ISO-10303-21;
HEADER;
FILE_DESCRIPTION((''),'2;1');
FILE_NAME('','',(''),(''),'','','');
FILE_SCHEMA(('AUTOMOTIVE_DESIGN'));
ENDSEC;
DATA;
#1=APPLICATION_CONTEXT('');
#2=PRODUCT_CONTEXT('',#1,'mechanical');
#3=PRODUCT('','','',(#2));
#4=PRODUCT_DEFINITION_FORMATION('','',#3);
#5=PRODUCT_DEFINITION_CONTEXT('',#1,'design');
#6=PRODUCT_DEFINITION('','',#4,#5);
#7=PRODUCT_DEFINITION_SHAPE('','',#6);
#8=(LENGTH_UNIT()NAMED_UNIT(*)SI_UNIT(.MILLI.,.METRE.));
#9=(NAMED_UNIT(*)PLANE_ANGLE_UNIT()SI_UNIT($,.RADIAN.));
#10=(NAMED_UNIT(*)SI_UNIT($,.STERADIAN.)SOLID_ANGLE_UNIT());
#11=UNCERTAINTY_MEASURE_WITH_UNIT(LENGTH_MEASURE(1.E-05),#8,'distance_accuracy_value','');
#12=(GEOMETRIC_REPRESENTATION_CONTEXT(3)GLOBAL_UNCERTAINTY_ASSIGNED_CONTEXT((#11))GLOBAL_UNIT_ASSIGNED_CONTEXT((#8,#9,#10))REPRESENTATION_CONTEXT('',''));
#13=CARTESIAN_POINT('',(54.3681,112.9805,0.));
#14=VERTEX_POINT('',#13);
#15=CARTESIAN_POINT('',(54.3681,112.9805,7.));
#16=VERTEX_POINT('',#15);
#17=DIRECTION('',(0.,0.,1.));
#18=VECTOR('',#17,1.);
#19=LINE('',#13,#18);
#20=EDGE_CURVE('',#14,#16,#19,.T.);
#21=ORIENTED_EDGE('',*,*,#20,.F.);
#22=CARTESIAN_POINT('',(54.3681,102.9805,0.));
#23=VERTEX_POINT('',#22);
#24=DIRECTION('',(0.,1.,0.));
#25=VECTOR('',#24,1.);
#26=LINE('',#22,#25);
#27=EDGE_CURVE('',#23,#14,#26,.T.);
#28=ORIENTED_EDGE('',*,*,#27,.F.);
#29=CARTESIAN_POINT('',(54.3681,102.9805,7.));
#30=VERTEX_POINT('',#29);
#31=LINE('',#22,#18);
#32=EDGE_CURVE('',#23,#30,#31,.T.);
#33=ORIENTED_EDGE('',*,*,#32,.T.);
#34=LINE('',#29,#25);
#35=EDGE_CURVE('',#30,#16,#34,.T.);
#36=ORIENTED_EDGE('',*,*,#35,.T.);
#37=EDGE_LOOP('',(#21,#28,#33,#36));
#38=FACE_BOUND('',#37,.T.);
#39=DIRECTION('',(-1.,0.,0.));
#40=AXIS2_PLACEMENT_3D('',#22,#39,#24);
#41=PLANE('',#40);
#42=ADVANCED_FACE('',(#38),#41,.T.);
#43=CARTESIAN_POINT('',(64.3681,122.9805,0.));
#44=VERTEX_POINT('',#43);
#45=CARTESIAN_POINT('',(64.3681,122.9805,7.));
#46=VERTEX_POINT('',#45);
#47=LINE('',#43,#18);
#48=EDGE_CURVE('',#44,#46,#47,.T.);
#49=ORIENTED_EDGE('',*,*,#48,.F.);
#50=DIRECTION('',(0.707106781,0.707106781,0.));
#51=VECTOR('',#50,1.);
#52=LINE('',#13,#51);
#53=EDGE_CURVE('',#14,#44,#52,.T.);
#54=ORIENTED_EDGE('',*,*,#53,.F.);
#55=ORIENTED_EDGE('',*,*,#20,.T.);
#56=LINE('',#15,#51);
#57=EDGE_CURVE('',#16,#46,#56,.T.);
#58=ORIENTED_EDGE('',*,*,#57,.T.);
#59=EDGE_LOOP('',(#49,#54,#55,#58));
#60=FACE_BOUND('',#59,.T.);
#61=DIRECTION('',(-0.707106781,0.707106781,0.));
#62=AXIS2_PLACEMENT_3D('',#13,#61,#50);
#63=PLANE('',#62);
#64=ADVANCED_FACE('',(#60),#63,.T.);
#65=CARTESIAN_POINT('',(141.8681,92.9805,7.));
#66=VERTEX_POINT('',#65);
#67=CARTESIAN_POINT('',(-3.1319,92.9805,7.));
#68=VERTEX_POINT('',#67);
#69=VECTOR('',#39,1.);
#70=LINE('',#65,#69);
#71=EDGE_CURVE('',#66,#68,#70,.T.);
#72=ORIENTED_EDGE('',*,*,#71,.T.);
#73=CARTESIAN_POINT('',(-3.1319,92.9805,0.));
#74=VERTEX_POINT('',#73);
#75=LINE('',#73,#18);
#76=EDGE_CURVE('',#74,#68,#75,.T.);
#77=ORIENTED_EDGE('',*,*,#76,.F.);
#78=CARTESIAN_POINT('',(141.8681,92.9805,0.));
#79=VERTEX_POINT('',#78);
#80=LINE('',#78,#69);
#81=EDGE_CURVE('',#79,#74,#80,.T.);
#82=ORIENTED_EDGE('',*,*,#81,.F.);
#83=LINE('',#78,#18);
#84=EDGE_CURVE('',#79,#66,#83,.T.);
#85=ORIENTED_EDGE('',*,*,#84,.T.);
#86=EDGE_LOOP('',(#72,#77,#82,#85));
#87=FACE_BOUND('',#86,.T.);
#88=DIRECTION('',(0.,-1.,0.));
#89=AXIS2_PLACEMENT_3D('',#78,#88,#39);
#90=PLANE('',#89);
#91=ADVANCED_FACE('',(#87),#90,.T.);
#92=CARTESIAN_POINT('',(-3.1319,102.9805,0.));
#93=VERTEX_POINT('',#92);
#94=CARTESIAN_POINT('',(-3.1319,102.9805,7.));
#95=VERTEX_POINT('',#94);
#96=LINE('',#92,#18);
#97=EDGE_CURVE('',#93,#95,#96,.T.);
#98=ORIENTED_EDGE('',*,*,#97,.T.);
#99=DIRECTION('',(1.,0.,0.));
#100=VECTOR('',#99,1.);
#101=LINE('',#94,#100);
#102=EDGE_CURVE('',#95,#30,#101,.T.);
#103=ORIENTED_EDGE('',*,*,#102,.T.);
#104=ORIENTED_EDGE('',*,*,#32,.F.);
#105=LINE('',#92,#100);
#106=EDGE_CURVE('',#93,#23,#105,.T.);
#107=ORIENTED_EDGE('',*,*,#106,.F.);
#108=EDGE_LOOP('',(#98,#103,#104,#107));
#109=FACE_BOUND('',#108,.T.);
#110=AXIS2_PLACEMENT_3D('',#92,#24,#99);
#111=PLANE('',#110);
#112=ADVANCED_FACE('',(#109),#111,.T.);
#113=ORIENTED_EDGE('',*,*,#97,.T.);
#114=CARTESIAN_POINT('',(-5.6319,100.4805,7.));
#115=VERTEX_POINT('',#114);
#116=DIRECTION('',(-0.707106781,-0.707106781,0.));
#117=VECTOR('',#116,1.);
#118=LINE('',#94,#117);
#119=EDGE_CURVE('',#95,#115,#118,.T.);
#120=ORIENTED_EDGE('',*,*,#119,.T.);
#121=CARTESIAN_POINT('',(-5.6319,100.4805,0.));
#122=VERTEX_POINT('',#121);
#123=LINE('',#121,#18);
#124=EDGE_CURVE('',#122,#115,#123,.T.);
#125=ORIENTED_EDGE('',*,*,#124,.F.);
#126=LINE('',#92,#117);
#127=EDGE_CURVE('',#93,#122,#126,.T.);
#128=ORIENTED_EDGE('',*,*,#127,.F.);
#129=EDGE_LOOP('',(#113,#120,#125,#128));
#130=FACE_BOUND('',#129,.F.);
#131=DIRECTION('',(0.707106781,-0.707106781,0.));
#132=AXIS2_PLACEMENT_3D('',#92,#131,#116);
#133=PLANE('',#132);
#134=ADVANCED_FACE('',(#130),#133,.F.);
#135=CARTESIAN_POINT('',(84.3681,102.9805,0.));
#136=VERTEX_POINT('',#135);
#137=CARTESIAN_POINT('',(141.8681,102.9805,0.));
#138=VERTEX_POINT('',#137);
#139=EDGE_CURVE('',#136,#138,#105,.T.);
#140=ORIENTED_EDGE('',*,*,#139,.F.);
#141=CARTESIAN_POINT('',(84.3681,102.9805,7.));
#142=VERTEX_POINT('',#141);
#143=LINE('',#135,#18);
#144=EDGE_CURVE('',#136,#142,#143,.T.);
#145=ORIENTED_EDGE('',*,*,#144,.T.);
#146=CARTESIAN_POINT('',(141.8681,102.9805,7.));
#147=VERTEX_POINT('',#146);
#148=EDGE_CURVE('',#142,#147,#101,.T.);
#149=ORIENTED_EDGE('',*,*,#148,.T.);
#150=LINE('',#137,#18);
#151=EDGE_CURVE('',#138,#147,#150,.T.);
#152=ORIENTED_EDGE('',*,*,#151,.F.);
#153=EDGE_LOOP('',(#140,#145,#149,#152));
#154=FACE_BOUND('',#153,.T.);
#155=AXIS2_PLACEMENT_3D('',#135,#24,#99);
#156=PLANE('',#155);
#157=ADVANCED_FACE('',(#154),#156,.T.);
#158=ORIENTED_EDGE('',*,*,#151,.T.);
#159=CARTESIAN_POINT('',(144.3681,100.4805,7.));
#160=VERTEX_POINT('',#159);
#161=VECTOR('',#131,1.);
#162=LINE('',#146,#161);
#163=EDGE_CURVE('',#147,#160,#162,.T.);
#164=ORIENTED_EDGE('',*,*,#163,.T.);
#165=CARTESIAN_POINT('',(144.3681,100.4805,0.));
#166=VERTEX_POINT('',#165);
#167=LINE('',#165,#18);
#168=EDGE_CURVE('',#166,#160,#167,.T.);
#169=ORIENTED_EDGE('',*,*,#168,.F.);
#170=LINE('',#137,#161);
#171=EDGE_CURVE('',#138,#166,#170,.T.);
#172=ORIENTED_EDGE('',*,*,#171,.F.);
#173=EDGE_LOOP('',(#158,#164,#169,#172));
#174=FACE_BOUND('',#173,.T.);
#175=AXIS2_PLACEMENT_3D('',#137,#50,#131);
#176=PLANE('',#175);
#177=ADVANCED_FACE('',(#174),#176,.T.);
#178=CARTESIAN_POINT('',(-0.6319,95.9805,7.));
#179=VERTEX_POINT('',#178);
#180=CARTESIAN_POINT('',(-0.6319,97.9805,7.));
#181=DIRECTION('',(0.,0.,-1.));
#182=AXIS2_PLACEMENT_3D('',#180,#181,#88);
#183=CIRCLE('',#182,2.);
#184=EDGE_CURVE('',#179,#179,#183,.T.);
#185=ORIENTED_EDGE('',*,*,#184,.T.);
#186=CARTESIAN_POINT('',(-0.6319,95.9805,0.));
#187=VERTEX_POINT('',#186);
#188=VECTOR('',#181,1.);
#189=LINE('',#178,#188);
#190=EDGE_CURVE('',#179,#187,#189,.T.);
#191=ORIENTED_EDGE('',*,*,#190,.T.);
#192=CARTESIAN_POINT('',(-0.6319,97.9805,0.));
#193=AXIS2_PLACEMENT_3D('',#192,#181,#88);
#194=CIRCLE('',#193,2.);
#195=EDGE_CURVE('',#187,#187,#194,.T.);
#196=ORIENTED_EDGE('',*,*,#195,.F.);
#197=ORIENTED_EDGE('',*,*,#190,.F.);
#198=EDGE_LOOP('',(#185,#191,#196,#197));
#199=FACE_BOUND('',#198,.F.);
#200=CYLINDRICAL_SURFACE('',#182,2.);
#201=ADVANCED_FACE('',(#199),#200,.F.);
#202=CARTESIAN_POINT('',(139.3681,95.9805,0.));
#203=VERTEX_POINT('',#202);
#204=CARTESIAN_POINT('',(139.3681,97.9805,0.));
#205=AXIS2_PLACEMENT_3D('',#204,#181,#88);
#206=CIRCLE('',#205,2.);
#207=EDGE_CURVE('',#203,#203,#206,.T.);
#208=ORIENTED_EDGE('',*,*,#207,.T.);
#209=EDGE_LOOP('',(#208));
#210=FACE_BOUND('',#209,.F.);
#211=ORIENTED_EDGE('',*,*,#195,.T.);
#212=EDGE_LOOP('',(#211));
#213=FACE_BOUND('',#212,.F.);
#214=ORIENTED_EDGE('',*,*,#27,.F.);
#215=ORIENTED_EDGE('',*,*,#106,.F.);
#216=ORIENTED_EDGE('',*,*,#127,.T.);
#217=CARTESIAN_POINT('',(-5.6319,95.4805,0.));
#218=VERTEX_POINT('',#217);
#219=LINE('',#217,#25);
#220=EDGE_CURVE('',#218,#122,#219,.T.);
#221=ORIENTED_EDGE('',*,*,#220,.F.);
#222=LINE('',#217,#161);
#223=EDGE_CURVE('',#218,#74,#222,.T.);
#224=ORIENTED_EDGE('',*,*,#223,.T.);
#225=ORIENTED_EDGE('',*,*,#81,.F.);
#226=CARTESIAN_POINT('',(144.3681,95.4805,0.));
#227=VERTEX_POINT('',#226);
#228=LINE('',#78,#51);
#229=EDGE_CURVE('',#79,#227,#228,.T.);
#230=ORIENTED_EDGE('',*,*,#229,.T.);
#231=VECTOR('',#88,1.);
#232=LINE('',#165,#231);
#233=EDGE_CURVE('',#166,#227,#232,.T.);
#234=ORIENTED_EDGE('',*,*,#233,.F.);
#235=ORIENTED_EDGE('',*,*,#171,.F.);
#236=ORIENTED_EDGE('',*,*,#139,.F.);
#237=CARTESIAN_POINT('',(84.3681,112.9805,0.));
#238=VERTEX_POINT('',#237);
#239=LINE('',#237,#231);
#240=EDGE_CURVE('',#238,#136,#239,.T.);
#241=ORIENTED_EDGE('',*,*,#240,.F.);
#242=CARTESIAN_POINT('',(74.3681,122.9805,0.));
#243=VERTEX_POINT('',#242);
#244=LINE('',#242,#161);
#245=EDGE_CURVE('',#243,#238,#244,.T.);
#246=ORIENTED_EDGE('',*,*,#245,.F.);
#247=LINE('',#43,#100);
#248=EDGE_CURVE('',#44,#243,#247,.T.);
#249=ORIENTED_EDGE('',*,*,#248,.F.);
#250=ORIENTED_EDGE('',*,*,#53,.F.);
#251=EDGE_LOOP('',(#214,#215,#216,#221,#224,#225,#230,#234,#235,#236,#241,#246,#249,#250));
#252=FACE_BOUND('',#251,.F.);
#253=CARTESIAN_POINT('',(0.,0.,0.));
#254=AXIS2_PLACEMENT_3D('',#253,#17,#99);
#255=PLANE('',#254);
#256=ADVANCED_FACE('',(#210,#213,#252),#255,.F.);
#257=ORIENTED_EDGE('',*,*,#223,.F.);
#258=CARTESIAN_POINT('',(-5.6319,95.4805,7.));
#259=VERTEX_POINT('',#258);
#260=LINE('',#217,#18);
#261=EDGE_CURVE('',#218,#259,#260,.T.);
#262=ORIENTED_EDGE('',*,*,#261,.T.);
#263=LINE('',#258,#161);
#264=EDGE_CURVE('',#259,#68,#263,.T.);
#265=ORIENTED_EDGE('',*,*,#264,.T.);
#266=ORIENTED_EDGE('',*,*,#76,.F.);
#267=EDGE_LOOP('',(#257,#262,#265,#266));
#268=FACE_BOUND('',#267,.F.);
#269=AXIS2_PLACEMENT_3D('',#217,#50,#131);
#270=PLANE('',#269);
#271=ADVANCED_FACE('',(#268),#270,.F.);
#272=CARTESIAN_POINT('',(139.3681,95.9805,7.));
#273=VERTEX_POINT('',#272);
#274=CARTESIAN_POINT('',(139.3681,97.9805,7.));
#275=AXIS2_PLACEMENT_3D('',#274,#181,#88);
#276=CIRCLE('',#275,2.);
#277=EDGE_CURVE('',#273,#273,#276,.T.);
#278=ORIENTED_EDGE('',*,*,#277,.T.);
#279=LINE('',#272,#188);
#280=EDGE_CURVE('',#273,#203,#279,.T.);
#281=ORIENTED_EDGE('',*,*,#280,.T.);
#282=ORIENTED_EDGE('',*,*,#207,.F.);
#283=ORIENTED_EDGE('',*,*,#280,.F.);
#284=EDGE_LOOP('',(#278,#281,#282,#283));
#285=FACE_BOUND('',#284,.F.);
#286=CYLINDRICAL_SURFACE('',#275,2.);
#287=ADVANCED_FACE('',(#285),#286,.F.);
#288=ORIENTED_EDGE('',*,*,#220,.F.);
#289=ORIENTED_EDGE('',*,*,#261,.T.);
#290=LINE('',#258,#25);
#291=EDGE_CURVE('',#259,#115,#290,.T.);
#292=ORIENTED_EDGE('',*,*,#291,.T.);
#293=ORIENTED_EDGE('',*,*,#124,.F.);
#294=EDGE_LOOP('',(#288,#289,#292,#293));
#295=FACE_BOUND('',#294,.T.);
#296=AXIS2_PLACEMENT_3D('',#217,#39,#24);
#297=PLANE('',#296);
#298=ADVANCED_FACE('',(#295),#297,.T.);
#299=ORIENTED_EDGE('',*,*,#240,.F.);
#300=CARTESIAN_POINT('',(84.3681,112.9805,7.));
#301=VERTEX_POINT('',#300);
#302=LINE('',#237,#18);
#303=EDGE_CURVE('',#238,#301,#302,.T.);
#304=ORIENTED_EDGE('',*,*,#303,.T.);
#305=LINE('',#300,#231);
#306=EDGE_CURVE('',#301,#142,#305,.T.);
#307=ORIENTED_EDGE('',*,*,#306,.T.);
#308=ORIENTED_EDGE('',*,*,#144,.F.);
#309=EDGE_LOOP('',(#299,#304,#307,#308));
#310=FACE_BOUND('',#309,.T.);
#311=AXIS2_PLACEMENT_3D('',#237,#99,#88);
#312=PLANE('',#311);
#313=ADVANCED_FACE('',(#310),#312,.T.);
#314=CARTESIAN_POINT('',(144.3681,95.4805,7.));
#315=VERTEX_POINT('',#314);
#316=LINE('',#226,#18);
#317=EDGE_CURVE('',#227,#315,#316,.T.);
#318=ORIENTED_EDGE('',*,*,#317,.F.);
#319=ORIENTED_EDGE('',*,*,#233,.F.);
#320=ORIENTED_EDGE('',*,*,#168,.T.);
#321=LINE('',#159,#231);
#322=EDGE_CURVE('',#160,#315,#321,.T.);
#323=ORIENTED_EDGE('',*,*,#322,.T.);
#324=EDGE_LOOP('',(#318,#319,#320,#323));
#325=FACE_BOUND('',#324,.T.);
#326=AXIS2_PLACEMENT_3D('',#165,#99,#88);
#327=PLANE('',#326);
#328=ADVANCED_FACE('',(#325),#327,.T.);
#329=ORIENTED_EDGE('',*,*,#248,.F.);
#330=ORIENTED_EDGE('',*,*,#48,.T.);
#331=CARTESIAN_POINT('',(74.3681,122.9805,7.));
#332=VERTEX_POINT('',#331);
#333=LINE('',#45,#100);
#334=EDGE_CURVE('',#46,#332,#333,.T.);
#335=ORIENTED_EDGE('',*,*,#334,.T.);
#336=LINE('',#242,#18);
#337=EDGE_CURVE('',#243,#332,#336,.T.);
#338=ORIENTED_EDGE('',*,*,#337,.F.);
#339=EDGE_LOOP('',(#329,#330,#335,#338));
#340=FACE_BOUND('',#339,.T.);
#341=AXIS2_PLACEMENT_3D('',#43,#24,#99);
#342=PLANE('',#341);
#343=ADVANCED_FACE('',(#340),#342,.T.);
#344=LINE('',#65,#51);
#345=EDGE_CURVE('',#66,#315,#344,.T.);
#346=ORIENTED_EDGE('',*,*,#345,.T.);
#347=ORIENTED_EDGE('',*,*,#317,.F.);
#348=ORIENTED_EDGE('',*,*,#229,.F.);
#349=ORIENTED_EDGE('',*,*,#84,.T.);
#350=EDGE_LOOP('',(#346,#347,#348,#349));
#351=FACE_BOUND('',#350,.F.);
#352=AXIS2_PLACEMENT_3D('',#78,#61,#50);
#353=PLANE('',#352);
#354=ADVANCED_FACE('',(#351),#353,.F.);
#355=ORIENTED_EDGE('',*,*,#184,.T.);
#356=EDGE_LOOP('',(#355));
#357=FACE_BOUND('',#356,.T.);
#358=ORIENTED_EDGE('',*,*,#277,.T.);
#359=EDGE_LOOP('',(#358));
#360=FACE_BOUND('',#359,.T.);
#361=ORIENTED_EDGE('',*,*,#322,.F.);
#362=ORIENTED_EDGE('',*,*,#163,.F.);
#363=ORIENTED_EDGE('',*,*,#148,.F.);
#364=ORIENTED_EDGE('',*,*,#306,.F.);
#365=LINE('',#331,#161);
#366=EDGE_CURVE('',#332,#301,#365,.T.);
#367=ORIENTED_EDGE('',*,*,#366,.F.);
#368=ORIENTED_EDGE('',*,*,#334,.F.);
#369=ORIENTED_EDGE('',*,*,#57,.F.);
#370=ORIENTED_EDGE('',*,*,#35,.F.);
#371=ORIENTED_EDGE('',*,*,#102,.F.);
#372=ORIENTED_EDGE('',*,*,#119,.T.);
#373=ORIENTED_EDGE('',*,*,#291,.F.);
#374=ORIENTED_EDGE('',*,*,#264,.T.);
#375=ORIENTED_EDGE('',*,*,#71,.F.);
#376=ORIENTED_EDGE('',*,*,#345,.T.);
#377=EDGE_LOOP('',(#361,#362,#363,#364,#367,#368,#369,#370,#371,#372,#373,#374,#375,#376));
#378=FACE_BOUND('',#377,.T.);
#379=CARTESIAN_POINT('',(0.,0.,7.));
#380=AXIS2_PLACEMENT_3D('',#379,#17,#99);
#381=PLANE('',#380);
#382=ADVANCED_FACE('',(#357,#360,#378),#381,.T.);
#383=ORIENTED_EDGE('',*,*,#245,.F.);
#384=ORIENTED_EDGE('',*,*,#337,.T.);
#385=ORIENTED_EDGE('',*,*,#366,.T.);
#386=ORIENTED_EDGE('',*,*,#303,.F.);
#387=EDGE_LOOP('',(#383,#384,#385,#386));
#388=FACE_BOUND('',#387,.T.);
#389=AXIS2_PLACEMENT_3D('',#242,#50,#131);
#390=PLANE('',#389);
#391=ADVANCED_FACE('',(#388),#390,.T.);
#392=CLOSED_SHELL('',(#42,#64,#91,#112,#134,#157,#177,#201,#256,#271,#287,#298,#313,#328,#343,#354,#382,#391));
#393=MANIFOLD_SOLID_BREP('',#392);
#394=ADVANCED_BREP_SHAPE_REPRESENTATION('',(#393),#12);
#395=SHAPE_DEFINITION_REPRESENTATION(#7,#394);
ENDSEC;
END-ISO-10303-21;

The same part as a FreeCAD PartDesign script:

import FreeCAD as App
import Part
import Sketcher
from FreeCAD import Vector
Q = App.Units.Quantity


def add_polygon(sketch, points):
    """Adds a closed chain of lines whose ends are joined by coincident constraints."""
    first, n = sketch.GeometryCount, len(points)
    for a, b in zip(points, points[1:] + points[:1]):
        sketch.addGeometry(Part.LineSegment(App.Vector(*a, 0), App.Vector(*b, 0)), False)
    for i in range(n):
        sketch.addConstraint(Sketcher.Constraint("Coincident", first + i, 2, first + (i + 1) % n, 1))

doc = App.newDocument("Part")
params = doc.addObject("Spreadsheet::Sheet", "Params")
for row, (alias, value) in enumerate([
    ("sketch1_width", "10 mm"),
    ("pad1_length", "7 mm"),
    ("sketch2_diameter", "4 mm"),
    ("hole_diameter", "4 mm"),
], start=1):
    params.set(f"A{row}", alias)
    params.set(f"B{row}", "=" + value)
    params.setAlias(f"B{row}", alias)

body = doc.addObject("PartDesign::Body", "Body")

sketch1 = doc.addObject("Sketcher::SketchObject", "Sketch")
body.addObject(sketch1)
sketch1.AttachmentSupport = (doc.XY_Plane, [""])
sketch1.MapMode = "FlatFace"
add_polygon(sketch1, [(54.3681, 102.9805), (-3.1319, 102.9805), (-5.6319, 100.4805), (-5.6319, 95.4805), (-3.1319, 92.9805), (141.8681, 92.9805), (144.3681, 95.4805), (144.3681, 100.4805), (141.8681, 102.9805), (84.3681, 102.9805), (84.3681, 112.9805), (74.3681, 122.9805), (64.3681, 122.9805), (54.3681, 112.9805)])
sketch1.addConstraint(Sketcher.Constraint("Horizontal", 0))
sketch1.addConstraint(Sketcher.Constraint("Vertical", 2))
sketch1.addConstraint(Sketcher.Constraint("Horizontal", 4))
sketch1.addConstraint(Sketcher.Constraint("Vertical", 6))
sketch1.addConstraint(Sketcher.Constraint("Horizontal", 8))
sketch1.addConstraint(Sketcher.Constraint("Vertical", 9))
sketch1.addConstraint(Sketcher.Constraint("Horizontal", 11))
sketch1.addConstraint(Sketcher.Constraint("Vertical", 13))
sketch1.addConstraint(Sketcher.Constraint("Perpendicular", 1, 3))
sketch1.addConstraint(Sketcher.Constraint("Perpendicular", 3, 5))
sketch1.addConstraint(Sketcher.Constraint("Perpendicular", 5, 7))
sketch1.addConstraint(Sketcher.Constraint("Parallel", 7, 10))
sketch1.addConstraint(Sketcher.Constraint("Perpendicular", 10, 12))
sketch1.addConstraint(Sketcher.Constraint("Horizontal", 2, 2, 5, 2))
sketch1.addConstraint(Sketcher.Constraint("Horizontal", 1, 2, 6, 2))
sketch1.addConstraint(Sketcher.Constraint("Horizontal", 0, 2, 7, 2))
sketch1.addConstraint(Sketcher.Constraint("Horizontal", 9, 2, 12, 2))
sketch1.addConstraint(Sketcher.Constraint("Vertical", 0, 2, 3, 2))
sketch1.addConstraint(Sketcher.Constraint("Vertical", 4, 2, 7, 2))
sketch1.addConstraint(Sketcher.Constraint("Equal", 0, 8))
sketch1.addConstraint(Sketcher.Constraint("Equal", 11, 9))
sketch1.addConstraint(Sketcher.Constraint("DistanceX", 11, 2, 11, 1, Q("10 mm")))
sketch1.addConstraint(Sketcher.Constraint("DistanceY", 3, 2, 0, 2, Q("10 mm")))
sketch1.addConstraint(Sketcher.Constraint("DistanceX", 2, 2, 5, 2, Q("150 mm")))
sketch1.addConstraint(Sketcher.Constraint("DistanceX", 10, 2, 9, 2, Q("10 mm")))
sketch1.addConstraint(Sketcher.Constraint("DistanceX", 1, 2, 0, 2, Q("2.5 mm")))
sketch1.addConstraint(Sketcher.Constraint("DistanceX", 0, 2, -1, 1, Q("3.132 mm")))
sketch1.addConstraint(Sketcher.Constraint("DistanceY", -1, 1, 0, 2, Q("102.9805 mm")))
sketch1.setExpression("Constraints[35]", "Params.sketch1_width")
pad1 = doc.addObject("PartDesign::Pad", "Pad")
body.addObject(pad1)
pad1.Profile = sketch1
pad1.setExpression("Length", "Params.pad1_length")

sketch2 = doc.addObject("Sketcher::SketchObject", "Sketch001")
body.addObject(sketch2)
sketch2.AttachmentSupport = (doc.XY_Plane, [""])
sketch2.MapMode = "FlatFace"
sketch2.AttachmentOffset = App.Placement(Vector(0, 0, 7), App.Rotation())
sketch2.addGeometry(Part.Circle(Vector(-0.6319, 97.9805, 0), Vector(0, 0, 1), 2), False)
sketch2.addGeometry(Part.Circle(Vector(139.3681, 97.9805, 0), Vector(0, 0, 1), 2), False)
sketch2.addConstraint(Sketcher.Constraint("Equal", 0, 1))
sketch2.addConstraint(Sketcher.Constraint("Horizontal", 0, 3, 1, 3))
sketch2.addConstraint(Sketcher.Constraint("Diameter", 0, Q("4 mm")))
sketch2.addConstraint(Sketcher.Constraint("DistanceX", 0, 3, 1, 3, Q("140 mm")))
sketch2.addConstraint(Sketcher.Constraint("DistanceX", 0, 3, -1, 1, Q("0.632 mm")))
sketch2.addConstraint(Sketcher.Constraint("DistanceY", -1, 1, 0, 3, Q("97.9805 mm")))
sketch2.setExpression("Constraints[2]", "Params.sketch2_diameter")
doc.recompute()
hole = doc.addObject("PartDesign::Hole", "Hole")
body.addObject(hole)
hole.Profile = sketch2
hole.ThreadType = "None"
hole.setExpression("Diameter", "Params.hole_diameter")
hole.DepthType = "ThroughAll"

doc.recompute()
